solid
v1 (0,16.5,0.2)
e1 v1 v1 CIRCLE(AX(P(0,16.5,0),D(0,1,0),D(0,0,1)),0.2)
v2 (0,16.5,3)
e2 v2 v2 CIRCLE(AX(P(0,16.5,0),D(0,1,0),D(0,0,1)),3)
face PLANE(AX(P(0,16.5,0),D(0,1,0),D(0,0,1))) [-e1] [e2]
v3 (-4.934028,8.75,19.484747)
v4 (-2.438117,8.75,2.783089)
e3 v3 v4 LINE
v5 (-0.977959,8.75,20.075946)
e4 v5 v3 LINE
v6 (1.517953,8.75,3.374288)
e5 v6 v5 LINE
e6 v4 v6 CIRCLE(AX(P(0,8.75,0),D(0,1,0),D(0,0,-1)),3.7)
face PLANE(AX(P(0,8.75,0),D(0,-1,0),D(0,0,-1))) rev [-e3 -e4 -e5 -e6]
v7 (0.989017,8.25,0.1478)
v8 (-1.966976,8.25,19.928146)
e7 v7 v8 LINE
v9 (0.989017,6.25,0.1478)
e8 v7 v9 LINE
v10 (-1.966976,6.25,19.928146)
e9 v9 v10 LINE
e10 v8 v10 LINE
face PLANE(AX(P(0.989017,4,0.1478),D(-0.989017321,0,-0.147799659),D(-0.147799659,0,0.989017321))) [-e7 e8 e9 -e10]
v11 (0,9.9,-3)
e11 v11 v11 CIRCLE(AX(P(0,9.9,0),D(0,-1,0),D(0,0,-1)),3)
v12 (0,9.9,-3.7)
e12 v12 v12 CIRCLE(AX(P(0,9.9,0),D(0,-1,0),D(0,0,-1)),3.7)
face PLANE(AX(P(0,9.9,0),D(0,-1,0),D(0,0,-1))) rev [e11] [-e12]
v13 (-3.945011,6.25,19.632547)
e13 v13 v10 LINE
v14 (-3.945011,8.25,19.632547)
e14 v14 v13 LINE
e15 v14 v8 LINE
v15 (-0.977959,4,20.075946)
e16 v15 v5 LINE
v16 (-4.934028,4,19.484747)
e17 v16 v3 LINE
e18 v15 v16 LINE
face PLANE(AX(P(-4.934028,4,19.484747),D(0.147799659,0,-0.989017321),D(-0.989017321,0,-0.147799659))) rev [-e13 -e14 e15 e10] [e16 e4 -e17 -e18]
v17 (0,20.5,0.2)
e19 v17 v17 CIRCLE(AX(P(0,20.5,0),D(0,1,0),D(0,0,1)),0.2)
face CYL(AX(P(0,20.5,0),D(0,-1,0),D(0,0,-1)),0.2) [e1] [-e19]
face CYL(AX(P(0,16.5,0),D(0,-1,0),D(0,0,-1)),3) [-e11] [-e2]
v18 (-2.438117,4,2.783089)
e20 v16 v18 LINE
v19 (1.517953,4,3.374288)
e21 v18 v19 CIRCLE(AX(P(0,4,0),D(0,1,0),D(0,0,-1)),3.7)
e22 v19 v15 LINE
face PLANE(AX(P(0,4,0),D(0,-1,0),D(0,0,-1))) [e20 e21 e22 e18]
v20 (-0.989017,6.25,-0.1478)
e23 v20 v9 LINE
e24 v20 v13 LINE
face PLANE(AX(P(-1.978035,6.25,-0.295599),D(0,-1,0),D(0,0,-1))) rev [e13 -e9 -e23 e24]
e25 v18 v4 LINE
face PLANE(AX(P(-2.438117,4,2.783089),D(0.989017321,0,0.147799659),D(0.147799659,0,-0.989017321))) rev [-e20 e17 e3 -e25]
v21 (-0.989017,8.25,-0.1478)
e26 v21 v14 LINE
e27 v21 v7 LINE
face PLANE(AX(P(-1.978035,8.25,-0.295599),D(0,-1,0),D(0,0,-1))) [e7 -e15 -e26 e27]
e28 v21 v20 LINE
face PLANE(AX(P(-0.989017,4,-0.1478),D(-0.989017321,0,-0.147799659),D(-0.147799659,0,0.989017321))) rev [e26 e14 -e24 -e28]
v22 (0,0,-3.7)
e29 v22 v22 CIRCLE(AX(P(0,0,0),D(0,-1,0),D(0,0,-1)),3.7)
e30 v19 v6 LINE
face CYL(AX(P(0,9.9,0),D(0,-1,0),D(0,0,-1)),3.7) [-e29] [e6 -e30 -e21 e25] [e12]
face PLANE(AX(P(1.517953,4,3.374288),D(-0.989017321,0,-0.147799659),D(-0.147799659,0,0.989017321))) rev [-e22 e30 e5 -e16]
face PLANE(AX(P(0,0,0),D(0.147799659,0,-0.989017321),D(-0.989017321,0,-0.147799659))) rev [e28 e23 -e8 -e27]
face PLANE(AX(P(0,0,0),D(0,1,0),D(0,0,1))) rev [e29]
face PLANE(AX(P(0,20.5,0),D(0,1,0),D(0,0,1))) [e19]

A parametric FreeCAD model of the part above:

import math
import FreeCAD as App
import Part
import Sketcher
Q = App.Units.Quantity

doc = App.newDocument("Part")
body = doc.addObject("PartDesign::Body", "Body")

# Sketch on XZ plane
sketch1 = body.newObject("Sketcher::SketchObject", "Sketch")
sketch1.AttachmentSupport = (doc.getObject("XZ_Plane"), [""])
sketch1.MapMode = "FlatFace"
sketch1.addGeometry(Part.Circle(App.Vector(0, 0, 0), App.Vector(0, 0, 1), 3), False)
sketch1.addConstraint([
    Sketcher.Constraint("Coincident", 0, 3, -1, 1),
    Sketcher.Constraint("Diameter", 0, Q("6 mm")),
])
pad1 = body.newObject("PartDesign::Pad", "Pad")
pad1.Profile = sketch1
pad1.Length = 16.5
pad1.Reversed = True

# Sketch on XZ plane
sketch2 = body.newObject("Sketcher::SketchObject", "Sketch001")
sketch2.AttachmentSupport = (doc.getObject("XZ_Plane"), [""])
sketch2.MapMode = "FlatFace"
sketch2.addGeometry(Part.Circle(App.Vector(0, 0, 0), App.Vector(0, 0, 1), 3.7), False)
sketch2.addConstraint([
    Sketcher.Constraint("Coincident", 0, 3, -1, 1),
    Sketcher.Constraint("Diameter", 0, Q("7.4 mm")),
])
pad2 = body.newObject("PartDesign::Pad", "Pad001")
pad2.Profile = sketch2
pad2.Length = 9.9
pad2.Reversed = True

# Sketch on XZ plane
sketch3 = body.newObject("Sketcher::SketchObject", "Sketch002")
sketch3.AttachmentSupport = (doc.getObject("XZ_Plane"), [""])
sketch3.MapMode = "FlatFace"
sketch3.AttachmentOffset = App.Placement(App.Vector(0, 0, -8.75), App.Rotation())
sketch3.addGeometry([
    Part.LineSegment(App.Vector(-4.9, 19.5, 0), App.Vector(-2.4, 2.8, 0)),
    Part.ArcOfCircle(Part.Circle(App.Vector(0, 0, 0), App.Vector(0, 0, 1), 3.7), math.radians(66), math.radians(131)),
    Part.LineSegment(App.Vector(1.5, 3.4, 0), App.Vector(-1, 20.1, 0)),
    Part.LineSegment(App.Vector(-1, 20.1, 0), App.Vector(-4.9, 19.5, 0)),
], False)
sketch3.addConstraint([
    Sketcher.Constraint("Coincident", 0, 2, 1, 2),
    Sketcher.Constraint("Coincident", 1, 1, 2, 1),
    Sketcher.Constraint("Coincident", 2, 2, 3, 1),
    Sketcher.Constraint("Coincident", 3, 2, 0, 1),
    Sketcher.Constraint("Coincident", 1, 3, -1, 1),
    Sketcher.Constraint("Parallel", 0, 2),
    Sketcher.Constraint("Perpendicular", 2, 3),
    Sketcher.Constraint("Equal", 0, 2),
    Sketcher.Constraint("Radius", 1, Q("3.7 mm")),
    Sketcher.Constraint("Distance", 3, Q("4 mm")),
    Sketcher.Constraint("DistanceY", 0, 2, 1, 1, Q("0.591199 mm")),
    Sketcher.Constraint("DistanceX", 2, 2, -1, 1, Q("0.977959 mm")),
])
pad3 = body.newObject("PartDesign::Pad", "Pad002")
pad3.Profile = sketch3
pad3.Length = 4.75

# Sketch on XZ plane
sketch4 = body.newObject("Sketcher::SketchObject", "Sketch003")
sketch4.AttachmentSupport = (doc.getObject("XZ_Plane"), [""])
sketch4.MapMode = "FlatFace"
sketch4.AttachmentOffset = App.Placement(App.Vector(0, 0, -16.5), App.Rotation())
sketch4.addGeometry(Part.Circle(App.Vector(0, 0, 0), App.Vector(0, 0, 1), 0.2), False)
sketch4.addConstraint([
    Sketcher.Constraint("Coincident", 0, 3, -1, 1),
    Sketcher.Constraint("Diameter", 0, Q("0.4 mm")),
])
pad4 = body.newObject("PartDesign::Pad", "Pad003")
pad4.Profile = sketch4
pad4.Length = 4
pad4.Reversed = True

# Sketch on an angled plane
sketch5 = body.newObject("Sketcher::SketchObject", "Sketch004")
sketch5.Placement = App.Placement(App.Vector(-2.955993, 0, 19.780346), App.Rotation(App.Vector(0.989017321, 0, 0.147799659), App.Vector(0, 1, 0), App.Vector(-0.147799659, 0, 0.989017321), "ZXY"))
sketch5.addGeometry([
    Part.LineSegment(App.Vector(-1, 8.3, 0), App.Vector(-1, 6.3, 0)),
    Part.LineSegment(App.Vector(-1, 6.3, 0), App.Vector(1, 6.3, 0)),
    Part.LineSegment(App.Vector(1, 6.3, 0), App.Vector(1, 8.3, 0)),
    Part.LineSegment(App.Vector(1, 8.3, 0), App.Vector(-1, 8.3, 0)),
], False)
sketch5.addConstraint([
    Sketcher.Constraint("Coincident", 0, 2, 1, 1),
    Sketcher.Constraint("Coincident", 1, 2, 2, 1),
    Sketcher.Constraint("Coincident", 2, 2, 3, 1),
    Sketcher.Constraint("Coincident", 3, 2, 0, 1),
    Sketcher.Constraint("Vertical", 0),
    Sketcher.Constraint("Horizontal", 1),
    Sketcher.Constraint("Vertical", 2),
    Sketcher.Constraint("Horizontal", 3),
    Sketcher.Constraint("Equal", 3, 0),
    Sketcher.Constraint("DistanceX", 1, 1, 1, 2, Q("2 mm")),
    Sketcher.Constraint("DistanceX", 0, 2, -1, 1, Q("1 mm")),
    Sketcher.Constraint("DistanceY", -1, 1, 0, 2, Q("6.25 mm")),
])
pocket1 = body.newObject("PartDesign::Pocket", "Pocket")
pocket1.Profile = sketch5
pocket1.Length = 20

doc.recompute()
